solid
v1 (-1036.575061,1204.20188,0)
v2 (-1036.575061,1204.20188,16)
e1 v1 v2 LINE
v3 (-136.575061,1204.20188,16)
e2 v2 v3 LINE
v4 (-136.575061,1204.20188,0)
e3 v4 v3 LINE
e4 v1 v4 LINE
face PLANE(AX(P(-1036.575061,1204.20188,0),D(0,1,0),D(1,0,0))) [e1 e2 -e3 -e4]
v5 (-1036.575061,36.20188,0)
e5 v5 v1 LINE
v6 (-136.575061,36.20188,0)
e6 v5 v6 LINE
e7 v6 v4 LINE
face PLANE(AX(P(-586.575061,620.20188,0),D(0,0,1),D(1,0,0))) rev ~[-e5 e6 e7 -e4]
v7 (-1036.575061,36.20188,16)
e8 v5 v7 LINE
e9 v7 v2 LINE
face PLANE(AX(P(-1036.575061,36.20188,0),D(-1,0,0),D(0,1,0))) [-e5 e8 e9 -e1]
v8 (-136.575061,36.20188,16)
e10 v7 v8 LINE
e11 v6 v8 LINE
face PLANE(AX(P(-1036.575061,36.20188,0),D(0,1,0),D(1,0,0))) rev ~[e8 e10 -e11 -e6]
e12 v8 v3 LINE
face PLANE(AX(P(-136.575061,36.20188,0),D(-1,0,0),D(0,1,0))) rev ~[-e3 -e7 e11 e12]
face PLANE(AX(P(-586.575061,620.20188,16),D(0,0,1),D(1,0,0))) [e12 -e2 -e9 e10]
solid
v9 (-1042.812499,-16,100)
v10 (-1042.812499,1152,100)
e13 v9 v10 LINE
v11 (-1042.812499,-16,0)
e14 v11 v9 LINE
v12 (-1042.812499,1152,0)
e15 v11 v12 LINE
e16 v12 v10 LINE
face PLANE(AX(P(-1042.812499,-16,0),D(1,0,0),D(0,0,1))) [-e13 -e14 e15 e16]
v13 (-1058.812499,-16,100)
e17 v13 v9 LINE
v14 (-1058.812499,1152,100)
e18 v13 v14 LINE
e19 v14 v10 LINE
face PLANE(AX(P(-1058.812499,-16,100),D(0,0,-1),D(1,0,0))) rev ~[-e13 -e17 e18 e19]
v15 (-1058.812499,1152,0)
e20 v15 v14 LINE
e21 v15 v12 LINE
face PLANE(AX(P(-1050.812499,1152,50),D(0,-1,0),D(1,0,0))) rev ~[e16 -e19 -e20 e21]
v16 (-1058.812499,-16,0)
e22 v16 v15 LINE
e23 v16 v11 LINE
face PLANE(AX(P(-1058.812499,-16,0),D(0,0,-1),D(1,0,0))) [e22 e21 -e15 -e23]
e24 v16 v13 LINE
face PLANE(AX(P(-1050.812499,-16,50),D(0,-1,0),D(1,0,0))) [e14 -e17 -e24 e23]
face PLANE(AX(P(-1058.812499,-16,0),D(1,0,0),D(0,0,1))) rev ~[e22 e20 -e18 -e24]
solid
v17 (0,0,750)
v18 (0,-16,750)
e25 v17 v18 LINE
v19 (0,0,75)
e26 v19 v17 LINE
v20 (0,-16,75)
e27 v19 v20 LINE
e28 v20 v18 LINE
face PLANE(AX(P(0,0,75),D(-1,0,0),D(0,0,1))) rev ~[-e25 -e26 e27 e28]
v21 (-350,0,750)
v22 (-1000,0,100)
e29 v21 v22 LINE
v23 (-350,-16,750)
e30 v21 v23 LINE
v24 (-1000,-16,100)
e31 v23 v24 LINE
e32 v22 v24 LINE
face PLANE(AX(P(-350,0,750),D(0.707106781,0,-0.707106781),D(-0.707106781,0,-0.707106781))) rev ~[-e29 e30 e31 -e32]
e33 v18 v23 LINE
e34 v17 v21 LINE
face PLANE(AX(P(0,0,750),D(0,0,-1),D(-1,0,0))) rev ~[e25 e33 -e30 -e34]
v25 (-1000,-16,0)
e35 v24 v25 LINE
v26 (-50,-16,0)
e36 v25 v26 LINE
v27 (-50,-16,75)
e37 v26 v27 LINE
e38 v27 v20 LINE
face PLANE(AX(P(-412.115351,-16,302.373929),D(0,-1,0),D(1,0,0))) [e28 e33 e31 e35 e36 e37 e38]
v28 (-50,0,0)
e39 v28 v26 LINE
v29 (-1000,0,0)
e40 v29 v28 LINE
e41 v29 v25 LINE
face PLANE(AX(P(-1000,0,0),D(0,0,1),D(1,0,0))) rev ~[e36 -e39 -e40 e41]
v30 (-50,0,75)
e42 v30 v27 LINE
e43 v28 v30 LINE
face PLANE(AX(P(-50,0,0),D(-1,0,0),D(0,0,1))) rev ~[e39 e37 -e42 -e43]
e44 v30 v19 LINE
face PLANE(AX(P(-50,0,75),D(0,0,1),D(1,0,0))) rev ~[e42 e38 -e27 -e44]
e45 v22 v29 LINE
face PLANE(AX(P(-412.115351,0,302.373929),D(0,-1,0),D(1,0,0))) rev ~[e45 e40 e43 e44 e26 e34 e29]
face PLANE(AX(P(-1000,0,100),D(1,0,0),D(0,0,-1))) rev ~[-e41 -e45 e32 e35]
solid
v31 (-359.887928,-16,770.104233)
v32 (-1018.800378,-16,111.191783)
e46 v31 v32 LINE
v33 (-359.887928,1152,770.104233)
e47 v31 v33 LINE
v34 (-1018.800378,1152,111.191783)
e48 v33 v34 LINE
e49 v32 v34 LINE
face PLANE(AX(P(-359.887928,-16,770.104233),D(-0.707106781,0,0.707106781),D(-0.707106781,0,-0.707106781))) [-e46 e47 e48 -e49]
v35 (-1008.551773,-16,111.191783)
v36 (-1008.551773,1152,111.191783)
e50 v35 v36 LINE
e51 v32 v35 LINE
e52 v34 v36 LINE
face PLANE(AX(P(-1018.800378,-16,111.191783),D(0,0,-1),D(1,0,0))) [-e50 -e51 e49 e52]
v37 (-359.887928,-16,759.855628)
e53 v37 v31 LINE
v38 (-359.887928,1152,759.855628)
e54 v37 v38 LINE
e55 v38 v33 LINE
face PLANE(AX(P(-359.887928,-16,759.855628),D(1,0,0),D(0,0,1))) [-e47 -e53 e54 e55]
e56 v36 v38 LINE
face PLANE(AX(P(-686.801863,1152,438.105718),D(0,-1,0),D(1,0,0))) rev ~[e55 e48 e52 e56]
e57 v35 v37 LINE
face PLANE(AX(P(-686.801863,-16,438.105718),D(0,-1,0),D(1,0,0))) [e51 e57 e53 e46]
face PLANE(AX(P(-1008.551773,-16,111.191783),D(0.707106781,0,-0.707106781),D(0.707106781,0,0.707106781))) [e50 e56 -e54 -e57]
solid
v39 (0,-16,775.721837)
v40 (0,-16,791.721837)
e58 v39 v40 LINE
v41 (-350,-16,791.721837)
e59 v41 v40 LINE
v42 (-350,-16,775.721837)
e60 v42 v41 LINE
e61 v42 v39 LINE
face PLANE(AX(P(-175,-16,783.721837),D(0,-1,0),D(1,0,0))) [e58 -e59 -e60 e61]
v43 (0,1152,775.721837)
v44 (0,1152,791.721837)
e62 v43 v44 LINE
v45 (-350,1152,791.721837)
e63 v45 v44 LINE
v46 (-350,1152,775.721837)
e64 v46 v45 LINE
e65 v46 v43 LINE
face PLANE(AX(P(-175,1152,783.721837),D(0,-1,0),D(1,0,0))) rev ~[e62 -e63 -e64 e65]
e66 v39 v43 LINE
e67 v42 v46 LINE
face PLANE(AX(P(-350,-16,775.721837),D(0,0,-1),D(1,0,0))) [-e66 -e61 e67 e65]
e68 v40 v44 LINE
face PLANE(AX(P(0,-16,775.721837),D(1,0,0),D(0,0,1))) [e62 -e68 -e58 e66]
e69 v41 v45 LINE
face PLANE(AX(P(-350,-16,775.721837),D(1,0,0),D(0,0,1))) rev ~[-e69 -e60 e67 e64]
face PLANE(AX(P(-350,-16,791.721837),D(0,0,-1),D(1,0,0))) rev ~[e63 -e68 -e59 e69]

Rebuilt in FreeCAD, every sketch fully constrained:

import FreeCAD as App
import Part
import Sketcher


def add_polygon(sketch, points):
    """Adds a closed chain of lines whose ends are joined by coincident constraints."""
    first, n = sketch.GeometryCount, len(points)
    for a, b in zip(points, points[1:] + points[:1]):
        sketch.addGeometry(Part.LineSegment(App.Vector(*a, 0), App.Vector(*b, 0)), False)
    for i in range(n):
        sketch.addConstraint(Sketcher.Constraint("Coincident", first + i, 2, first + (i + 1) % n, 1))

doc = App.newDocument("Part")
params = doc.addObject("Spreadsheet::Sheet", "Params")
for row, (alias, value) in enumerate([
    ("sketch1_width", "950 mm"),
    ("sketch1_width2", "50 mm"),
    ("sketch1_width3", "350 mm"),
    ("sketch1_height", "100 mm"),
    ("sketch1_height2", "75 mm"),
    ("pad1_length", "16 mm"),
    ("sketch2_width", "900 mm"),
    ("sketch2_height", "1168 mm"),
    ("pad2_length", "16 mm"),
    ("sketch3_width", "350 mm"),
    ("sketch3_height", "16 mm"),
    ("pad3_length", "1168 mm"),
    ("sketch4_width", "16 mm"),
    ("sketch4_height", "100 mm"),
    ("pad4_length", "1168 mm"),
    ("pad5_length", "1168 mm"),
], start=1):
    params.set(f"A{row}", alias)
    params.set(f"B{row}", "=" + value)
    params.setAlias(f"B{row}", alias)

body = doc.addObject("PartDesign::Body", "Body")

# Sketch on XZ plane
sketch1 = body.newObject("Sketcher::SketchObject", "Sketch")
sketch1.AttachmentSupport = (doc.getObject("XZ_Plane"), [""])
sketch1.MapMode = "FlatFace"
add_polygon(sketch1, [(-1000, 100), (-1000, 0), (-50, 0), (-50, 75), (0, 75), (0, 750), (-350, 750)])  # lines 0-6
sketch1.addConstraint([
    Sketcher.Constraint("Vertical", 0),
    Sketcher.Constraint("Horizontal", 1),
    Sketcher.Constraint("Vertical", 2),
    Sketcher.Constraint("Horizontal", 3),
    Sketcher.Constraint("Vertical", 4),
    Sketcher.Constraint("Horizontal", 5),
    Sketcher.Constraint("PointOnObject", 0, 2, -1),
    Sketcher.Constraint("PointOnObject", 3, 2, -2),
    Sketcher.Constraint("DistanceX", 1, 1, 1, 2, 950.0),
    Sketcher.Constraint("DistanceX", 3, 1, 3, 2, 50.0),
    Sketcher.Constraint("DistanceX", 5, 2, 5, 1, 350.0),
    Sketcher.Constraint("DistanceY", 0, 2, 0, 1, 100.0),
    Sketcher.Constraint("DistanceY", 2, 1, 2, 2, 75.0),
    Sketcher.Constraint("DistanceY", 4, 1, 4, 2, 675.0),
])
sketch1.setExpression("Constraints[15]", "Params.sketch1_width")
sketch1.setExpression("Constraints[16]", "Params.sketch1_width2")
sketch1.setExpression("Constraints[17]", "Params.sketch1_width3")
sketch1.setExpression("Constraints[18]", "Params.sketch1_height")
sketch1.setExpression("Constraints[19]", "Params.sketch1_height2")
pad1 = body.newObject("PartDesign::Pad", "Pad")
pad1.Profile = sketch1
pad1.setExpression("Length", "Params.pad1_length")
body2 = doc.addObject("PartDesign::Body", "Body001")

# Sketch on XY plane
sketch2 = body2.newObject("Sketcher::SketchObject", "Sketch001")
sketch2.AttachmentSupport = (doc.getObject("XY_Plane001"), [""])
sketch2.MapMode = "FlatFace"
add_polygon(sketch2, [(-1037, 1204), (-1037, 36), (-137, 36), (-137, 1204)])  # lines 0-3
sketch2.addConstraint([
    Sketcher.Constraint("Vertical", 0),
    Sketcher.Constraint("Horizontal", 1),
    Sketcher.Constraint("Vertical", 2),
    Sketcher.Constraint("Horizontal", 3),
    Sketcher.Constraint("DistanceX", 1, 1, 1, 2, 900.0),
    Sketcher.Constraint("DistanceY", 0, 2, 0, 1, 1168.0),
    Sketcher.Constraint("DistanceX", 0, 2, -1, 1, 1036.575061),
    Sketcher.Constraint("DistanceY", -1, 1, 0, 2, 36.20188),
])
sketch2.setExpression("Constraints[8]", "Params.sketch2_width")
sketch2.setExpression("Constraints[9]", "Params.sketch2_height")
pad2 = body2.newObject("PartDesign::Pad", "Pad001")
pad2.Profile = sketch2
pad2.setExpression("Length", "Params.pad2_length")
body3 = doc.addObject("PartDesign::Body", "Body002")

# Sketch on XZ plane
sketch3 = body3.newObject("Sketcher::SketchObject", "Sketch002")
sketch3.AttachmentSupport = (doc.getObject("XZ_Plane002"), [""])
sketch3.MapMode = "FlatFace"
sketch3.AttachmentOffset = App.Placement(App.Vector(0, 0, 16), App.Rotation())
add_polygon(sketch3, [(-350, 792), (-350, 776), (0, 776), (0, 792)])  # lines 0-3
sketch3.addConstraint([
    Sketcher.Constraint("Vertical", 0),
    Sketcher.Constraint("Horizontal", 1),
    Sketcher.Constraint("Vertical", 2),
    Sketcher.Constraint("Horizontal", 3),
    Sketcher.Constraint("PointOnObject", 1, 2, -2),
    Sketcher.Constraint("DistanceX", 1, 1, 1, 2, 350.0),
    Sketcher.Constraint("DistanceY", 0, 2, 0, 1, 16.0),
    Sketcher.Constraint("DistanceY", -1, 1, 0, 2, 775.721837),
])
sketch3.setExpression("Constraints[9]", "Params.sketch3_width")
sketch3.setExpression("Constraints[10]", "Params.sketch3_height")
pad3 = body3.newObject("PartDesign::Pad", "Pad002")
pad3.Profile = sketch3
pad3.setExpression("Length", "Params.pad3_length")
pad3.Reversed = True
body4 = doc.addObject("PartDesign::Body", "Body003")

# Sketch on XZ plane
sketch4 = body4.newObject("Sketcher::SketchObject", "Sketch003")
sketch4.AttachmentSupport = (doc.getObject("XZ_Plane003"), [""])
sketch4.MapMode = "FlatFace"
sketch4.AttachmentOffset = App.Placement(App.Vector(0, 0, 16), App.Rotation())
add_polygon(sketch4, [(-1059, 100), (-1059, 0), (-1043, 0), (-1043, 100)])  # lines 0-3
sketch4.addConstraint([
    Sketcher.Constraint("Vertical", 0),
    Sketcher.Constraint("Horizontal", 1),
    Sketcher.Constraint("Vertical", 2),
    Sketcher.Constraint("Horizontal", 3),
    Sketcher.Constraint("PointOnObject", 0, 2, -1),
    Sketcher.Constraint("DistanceX", 1, 1, 1, 2, 16.0),
    Sketcher.Constraint("DistanceY", 0, 2, 0, 1, 100.0),
    Sketcher.Constraint("DistanceX", 0, 2, -1, 1, 1058.812499),
])
sketch4.setExpression("Constraints[9]", "Params.sketch4_width")
sketch4.setExpression("Constraints[10]", "Params.sketch4_height")
pad4 = body4.newObject("PartDesign::Pad", "Pad003")
pad4.Profile = sketch4
pad4.setExpression("Length", "Params.pad4_length")
pad4.Reversed = True
body5 = doc.addObject("PartDesign::Body", "Body004")

# Sketch on XZ plane
sketch5 = body5.newObject("Sketcher::SketchObject", "Sketch004")
sketch5.AttachmentSupport = (doc.getObject("XZ_Plane004"), [""])
sketch5.MapMode = "FlatFace"
sketch5.AttachmentOffset = App.Placement(App.Vector(0, 0, 16), App.Rotation())
add_polygon(sketch5, [(-1009, 111), (-360, 760), (-360, 770), (-1019, 111)])  # lines 0-3
sketch5.addConstraint([
    Sketcher.Constraint("Vertical", 1),
    Sketcher.Constraint("Horizontal", 3),
    Sketcher.Constraint("Parallel", 0, 2),
    Sketcher.Constraint("Equal", 3, 1),
    Sketcher.Constraint("DistanceX", 3, 1, 3, 2, 10.248605),
    Sketcher.Constraint("DistanceY", -1, 1, 0, 2, 759.855628),
    Sketcher.Constraint("DistanceX", 2, 2, 0, 2, 658.91245),
    Sketcher.Constraint("DistanceX", 0, 2, -1, 1, 359.887928),
])
pad5 = body5.newObject("PartDesign::Pad", "Pad004")
pad5.Profile = sketch5
pad5.setExpression("Length", "Params.pad5_length")
pad5.Reversed = True

doc.recompute()
